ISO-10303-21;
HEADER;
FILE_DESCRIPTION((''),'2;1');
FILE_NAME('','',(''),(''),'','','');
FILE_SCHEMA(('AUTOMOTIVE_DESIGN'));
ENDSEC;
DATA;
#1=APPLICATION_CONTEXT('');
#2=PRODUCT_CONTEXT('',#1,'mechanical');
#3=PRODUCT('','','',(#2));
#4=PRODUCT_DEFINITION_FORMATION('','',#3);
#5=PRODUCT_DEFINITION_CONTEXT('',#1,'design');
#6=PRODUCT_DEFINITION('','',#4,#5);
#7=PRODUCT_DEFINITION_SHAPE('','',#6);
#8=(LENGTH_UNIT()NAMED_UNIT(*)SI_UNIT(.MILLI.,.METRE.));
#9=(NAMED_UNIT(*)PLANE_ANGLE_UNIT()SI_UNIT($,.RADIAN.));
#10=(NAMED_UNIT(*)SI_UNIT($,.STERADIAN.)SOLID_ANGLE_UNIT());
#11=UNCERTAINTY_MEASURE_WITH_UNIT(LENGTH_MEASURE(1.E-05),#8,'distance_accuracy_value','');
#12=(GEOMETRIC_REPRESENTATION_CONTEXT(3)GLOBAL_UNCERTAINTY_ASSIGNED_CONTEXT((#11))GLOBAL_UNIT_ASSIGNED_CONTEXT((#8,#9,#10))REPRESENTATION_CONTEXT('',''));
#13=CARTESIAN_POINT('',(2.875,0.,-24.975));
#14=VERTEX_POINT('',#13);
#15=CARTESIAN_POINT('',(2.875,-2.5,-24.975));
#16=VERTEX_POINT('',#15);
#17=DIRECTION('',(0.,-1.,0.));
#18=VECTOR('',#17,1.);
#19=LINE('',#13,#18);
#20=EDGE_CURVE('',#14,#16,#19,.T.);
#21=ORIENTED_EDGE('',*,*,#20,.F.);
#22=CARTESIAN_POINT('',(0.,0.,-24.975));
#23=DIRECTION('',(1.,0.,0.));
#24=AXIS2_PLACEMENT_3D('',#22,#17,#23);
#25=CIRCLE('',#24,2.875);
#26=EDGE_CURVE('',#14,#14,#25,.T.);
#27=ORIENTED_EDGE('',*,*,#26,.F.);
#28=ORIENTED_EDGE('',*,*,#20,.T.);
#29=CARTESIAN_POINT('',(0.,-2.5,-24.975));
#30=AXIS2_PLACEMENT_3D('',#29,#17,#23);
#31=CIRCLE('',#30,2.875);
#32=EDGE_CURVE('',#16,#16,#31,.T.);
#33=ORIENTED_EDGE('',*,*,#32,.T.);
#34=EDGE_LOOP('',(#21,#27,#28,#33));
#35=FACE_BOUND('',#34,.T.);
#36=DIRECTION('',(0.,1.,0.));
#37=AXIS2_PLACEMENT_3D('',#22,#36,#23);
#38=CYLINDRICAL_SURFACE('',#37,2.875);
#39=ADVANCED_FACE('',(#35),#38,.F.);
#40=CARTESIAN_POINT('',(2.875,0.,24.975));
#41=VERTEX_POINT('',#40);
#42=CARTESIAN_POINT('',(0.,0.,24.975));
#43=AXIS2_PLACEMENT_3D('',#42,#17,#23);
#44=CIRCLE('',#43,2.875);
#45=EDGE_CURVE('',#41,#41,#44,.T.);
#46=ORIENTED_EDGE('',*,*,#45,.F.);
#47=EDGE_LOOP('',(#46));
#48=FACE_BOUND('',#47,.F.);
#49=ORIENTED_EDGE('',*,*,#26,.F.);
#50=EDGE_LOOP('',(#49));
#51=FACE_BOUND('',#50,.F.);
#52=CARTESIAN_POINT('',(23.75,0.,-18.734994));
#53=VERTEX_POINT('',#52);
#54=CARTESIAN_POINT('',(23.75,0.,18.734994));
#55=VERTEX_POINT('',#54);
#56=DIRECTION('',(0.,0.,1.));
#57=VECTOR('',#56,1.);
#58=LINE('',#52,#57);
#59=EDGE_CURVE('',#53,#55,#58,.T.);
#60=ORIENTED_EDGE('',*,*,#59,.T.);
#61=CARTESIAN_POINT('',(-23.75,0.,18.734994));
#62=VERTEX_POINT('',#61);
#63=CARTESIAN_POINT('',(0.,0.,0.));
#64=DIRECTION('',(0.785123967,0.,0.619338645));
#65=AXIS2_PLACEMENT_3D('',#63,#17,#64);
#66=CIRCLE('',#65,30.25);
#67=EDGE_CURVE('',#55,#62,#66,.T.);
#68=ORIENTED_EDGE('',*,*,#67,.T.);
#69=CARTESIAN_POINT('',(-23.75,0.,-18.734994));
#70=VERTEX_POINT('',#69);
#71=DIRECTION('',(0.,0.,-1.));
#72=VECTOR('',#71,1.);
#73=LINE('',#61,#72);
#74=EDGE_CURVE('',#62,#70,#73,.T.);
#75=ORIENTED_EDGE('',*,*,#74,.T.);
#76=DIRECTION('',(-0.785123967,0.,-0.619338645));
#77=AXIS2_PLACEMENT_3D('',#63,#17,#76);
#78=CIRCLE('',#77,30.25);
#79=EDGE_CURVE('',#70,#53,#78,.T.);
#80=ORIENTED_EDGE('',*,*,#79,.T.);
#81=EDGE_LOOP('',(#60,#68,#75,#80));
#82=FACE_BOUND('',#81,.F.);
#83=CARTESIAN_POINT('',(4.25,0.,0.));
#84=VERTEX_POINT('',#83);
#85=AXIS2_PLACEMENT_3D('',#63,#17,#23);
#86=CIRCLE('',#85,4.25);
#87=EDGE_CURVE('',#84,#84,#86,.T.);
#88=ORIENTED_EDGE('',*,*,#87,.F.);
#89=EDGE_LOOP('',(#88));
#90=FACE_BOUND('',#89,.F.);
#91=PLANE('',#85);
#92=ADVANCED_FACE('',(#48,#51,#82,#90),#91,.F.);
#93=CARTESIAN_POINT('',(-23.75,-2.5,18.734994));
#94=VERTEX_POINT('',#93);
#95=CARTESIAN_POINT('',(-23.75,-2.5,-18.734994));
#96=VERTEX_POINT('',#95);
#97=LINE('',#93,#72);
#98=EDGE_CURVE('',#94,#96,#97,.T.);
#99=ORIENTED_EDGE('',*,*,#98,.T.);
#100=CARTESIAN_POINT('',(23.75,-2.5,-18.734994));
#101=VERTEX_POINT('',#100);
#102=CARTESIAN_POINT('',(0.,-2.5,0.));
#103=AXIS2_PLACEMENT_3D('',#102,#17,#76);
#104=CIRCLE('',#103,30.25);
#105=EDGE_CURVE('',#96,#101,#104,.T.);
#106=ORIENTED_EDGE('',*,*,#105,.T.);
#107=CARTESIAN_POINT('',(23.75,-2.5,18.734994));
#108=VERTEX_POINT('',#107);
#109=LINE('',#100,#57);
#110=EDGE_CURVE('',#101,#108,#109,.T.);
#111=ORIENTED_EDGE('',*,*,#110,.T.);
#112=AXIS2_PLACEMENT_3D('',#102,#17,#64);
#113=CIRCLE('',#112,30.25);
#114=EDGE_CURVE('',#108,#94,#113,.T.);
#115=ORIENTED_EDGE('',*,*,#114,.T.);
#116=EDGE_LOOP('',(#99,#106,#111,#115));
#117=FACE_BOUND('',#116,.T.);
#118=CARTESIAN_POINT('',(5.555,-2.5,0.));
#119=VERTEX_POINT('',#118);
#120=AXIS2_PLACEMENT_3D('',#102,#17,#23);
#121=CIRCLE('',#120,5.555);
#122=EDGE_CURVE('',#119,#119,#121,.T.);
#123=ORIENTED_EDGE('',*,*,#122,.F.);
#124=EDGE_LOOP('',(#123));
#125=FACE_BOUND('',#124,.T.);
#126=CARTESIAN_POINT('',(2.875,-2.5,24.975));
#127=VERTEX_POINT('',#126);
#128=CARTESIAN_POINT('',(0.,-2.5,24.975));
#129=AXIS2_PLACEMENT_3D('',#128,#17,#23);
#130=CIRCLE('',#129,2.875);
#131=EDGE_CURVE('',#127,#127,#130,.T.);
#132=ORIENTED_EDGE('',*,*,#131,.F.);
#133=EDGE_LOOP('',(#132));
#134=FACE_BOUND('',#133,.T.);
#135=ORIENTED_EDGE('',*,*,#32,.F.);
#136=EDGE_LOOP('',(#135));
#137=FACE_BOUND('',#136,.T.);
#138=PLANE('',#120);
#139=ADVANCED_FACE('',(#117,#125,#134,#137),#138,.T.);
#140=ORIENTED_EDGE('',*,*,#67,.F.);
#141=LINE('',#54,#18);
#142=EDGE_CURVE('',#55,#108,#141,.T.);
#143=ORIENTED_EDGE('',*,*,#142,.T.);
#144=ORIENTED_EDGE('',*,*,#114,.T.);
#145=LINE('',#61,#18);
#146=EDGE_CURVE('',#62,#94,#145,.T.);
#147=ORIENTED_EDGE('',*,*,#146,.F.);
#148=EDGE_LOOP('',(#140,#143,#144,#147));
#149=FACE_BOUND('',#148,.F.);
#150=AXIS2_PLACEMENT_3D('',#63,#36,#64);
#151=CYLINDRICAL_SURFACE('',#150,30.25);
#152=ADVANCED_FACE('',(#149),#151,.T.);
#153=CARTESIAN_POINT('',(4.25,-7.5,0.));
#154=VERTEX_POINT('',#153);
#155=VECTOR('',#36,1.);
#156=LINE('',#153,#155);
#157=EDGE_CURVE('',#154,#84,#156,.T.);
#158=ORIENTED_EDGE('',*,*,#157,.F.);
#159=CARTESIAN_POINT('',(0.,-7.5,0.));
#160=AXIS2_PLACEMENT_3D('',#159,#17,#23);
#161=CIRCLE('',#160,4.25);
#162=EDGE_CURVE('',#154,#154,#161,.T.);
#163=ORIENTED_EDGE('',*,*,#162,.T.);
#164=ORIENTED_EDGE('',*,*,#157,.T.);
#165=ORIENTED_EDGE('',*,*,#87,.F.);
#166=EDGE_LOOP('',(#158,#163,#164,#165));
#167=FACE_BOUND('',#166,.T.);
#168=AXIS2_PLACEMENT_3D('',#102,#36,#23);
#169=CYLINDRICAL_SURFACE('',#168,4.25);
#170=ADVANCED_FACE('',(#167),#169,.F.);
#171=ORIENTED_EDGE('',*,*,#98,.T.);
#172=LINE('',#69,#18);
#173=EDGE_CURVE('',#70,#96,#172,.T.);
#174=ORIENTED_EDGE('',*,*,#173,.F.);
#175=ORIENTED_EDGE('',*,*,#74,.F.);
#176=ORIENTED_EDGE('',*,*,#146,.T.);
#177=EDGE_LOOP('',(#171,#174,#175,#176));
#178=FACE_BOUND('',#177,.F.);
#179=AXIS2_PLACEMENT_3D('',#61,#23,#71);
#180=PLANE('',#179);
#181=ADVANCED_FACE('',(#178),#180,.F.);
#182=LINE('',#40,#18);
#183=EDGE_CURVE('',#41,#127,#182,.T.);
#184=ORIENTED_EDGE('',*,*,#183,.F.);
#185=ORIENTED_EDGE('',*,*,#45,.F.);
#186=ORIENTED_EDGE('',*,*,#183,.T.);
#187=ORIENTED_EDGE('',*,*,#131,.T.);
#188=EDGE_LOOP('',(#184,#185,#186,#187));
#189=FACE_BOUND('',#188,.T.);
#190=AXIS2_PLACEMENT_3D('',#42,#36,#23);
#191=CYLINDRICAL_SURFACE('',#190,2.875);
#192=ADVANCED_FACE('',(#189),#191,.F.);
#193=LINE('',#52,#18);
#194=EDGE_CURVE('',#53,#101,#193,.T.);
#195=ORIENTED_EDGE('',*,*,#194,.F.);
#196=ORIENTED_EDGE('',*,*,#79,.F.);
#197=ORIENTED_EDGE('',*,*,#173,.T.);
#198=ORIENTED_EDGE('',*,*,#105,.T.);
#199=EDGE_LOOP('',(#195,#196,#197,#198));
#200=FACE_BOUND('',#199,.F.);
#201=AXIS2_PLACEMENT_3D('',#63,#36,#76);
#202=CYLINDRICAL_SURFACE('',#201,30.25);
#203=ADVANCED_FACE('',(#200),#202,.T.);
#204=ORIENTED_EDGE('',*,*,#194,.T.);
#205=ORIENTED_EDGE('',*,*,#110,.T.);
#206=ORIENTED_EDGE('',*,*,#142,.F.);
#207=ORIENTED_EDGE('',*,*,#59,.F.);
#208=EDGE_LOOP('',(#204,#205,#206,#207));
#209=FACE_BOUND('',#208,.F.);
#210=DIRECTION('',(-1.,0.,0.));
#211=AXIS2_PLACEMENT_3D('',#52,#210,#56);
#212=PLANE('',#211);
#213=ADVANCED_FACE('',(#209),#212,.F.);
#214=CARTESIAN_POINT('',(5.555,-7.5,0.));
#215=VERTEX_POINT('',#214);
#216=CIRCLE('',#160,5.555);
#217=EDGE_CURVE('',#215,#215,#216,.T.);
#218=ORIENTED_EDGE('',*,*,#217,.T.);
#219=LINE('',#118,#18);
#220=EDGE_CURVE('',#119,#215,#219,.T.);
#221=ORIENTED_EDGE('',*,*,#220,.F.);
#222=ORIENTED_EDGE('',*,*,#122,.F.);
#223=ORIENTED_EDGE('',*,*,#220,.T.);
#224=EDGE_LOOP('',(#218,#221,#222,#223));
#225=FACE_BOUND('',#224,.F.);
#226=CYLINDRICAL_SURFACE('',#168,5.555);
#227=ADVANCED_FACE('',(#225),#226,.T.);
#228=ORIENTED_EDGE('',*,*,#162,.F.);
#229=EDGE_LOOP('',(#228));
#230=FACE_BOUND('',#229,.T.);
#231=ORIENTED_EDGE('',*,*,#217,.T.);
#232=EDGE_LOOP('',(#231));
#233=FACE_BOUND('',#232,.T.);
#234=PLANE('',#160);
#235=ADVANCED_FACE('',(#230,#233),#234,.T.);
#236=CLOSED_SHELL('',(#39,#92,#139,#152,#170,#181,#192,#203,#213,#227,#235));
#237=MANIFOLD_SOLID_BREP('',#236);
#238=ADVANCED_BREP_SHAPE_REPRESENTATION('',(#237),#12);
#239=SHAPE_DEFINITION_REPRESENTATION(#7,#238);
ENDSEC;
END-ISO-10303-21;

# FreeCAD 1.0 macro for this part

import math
import FreeCAD as App
import Part
import Sketcher

doc = App.newDocument("Part")
body = doc.addObject("PartDesign::Body", "Body")

# Sketch on XZ plane
sketch1 = doc.addObject("Sketcher::SketchObject", "Sketch")
body.addObject(sketch1)
sketch1.AttachmentSupport = (doc.XZ_Plane, [""])
sketch1.MapMode = "FlatFace"
sketch1.addGeometry(Part.LineSegment(App.Vector(23.75, -18.734994, 0), App.Vector(23.75, 18.734994, 0)), False)
sketch1.addGeometry(Part.ArcOfCircle(Part.Circle(App.Vector(0, 0, 0), App.Vector(0, 0, 1), 30.25), math.radians(38.267855), math.radians(141.732145)), False)
sketch1.addGeometry(Part.LineSegment(App.Vector(-23.75, 18.734994, 0), App.Vector(-23.75, -18.734994, 0)), False)
sketch1.addGeometry(Part.ArcOfCircle(Part.Circle(App.Vector(0, 0, 0), App.Vector(0, 0, 1), 30.25), math.radians(-141.732145), math.radians(-38.267855)), False)
sketch1.addGeometry(Part.Circle(App.Vector(0, -24.975, 0), App.Vector(0, 0, 1), 2.875), False)
sketch1.addGeometry(Part.Circle(App.Vector(0, 0, 0), App.Vector(0, 0, 1), 4.25), False)
sketch1.addGeometry(Part.Circle(App.Vector(0, 24.975, 0), App.Vector(0, 0, 1), 2.875), False)
sketch1.addConstraint(Sketcher.Constraint("Coincident", 0, 2, 1, 1))
sketch1.addConstraint(Sketcher.Constraint("Coincident", 1, 2, 2, 1))
sketch1.addConstraint(Sketcher.Constraint("Coincident", 2, 2, 3, 1))
sketch1.addConstraint(Sketcher.Constraint("Coincident", 3, 2, 0, 1))
sketch1.addConstraint(Sketcher.Constraint("Vertical", 0))
sketch1.addConstraint(Sketcher.Constraint("Vertical", 2))
sketch1.addConstraint(Sketcher.Constraint("Coincident", 1, 3, -1, 1))
sketch1.addConstraint(Sketcher.Constraint("Coincident", 3, 3, -1, 1))
sketch1.addConstraint(Sketcher.Constraint("Coincident", 5, 3, -1, 1))
sketch1.addConstraint(Sketcher.Constraint("Equal", 1, 3))
sketch1.addConstraint(Sketcher.Constraint("Equal", 4, 6))
sketch1.addConstraint(Sketcher.Constraint("Symmetric", 4, 3, 6, 3, -1, 1))
sketch1.addConstraint(Sketcher.Constraint("PointOnObject", 4, 3, -2))
sketch1.addConstraint(Sketcher.Constraint("Horizontal", 0, 2, 1, 2))
sketch1.addConstraint(Sketcher.Constraint("Diameter", 5, 8.5))
sketch1.addConstraint(Sketcher.Constraint("Diameter", 4, 5.75))
sketch1.addConstraint(Sketcher.Constraint("Radius", 1, 30.25))
sketch1.addConstraint(Sketcher.Constraint("DistanceX", 1, 2, 0, 2, 47.5))
sketch1.addConstraint(Sketcher.Constraint("DistanceY", 4, 3, 6, 3, 49.95))
pad1 = doc.addObject("PartDesign::Pad", "Pad")
body.addObject(pad1)
pad1.Profile = sketch1
pad1.Length = 2.5

# Sketch on XZ plane
sketch2 = doc.addObject("Sketcher::SketchObject", "Sketch001")
body.addObject(sketch2)
sketch2.AttachmentSupport = (doc.XZ_Plane, [""])
sketch2.MapMode = "FlatFace"
sketch2.AttachmentOffset = App.Placement(App.Vector(0, 0, 2.5), App.Rotation())
sketch2.addGeometry(Part.Circle(App.Vector(0, 0, 0), App.Vector(0, 0, 1), 5.555), False)
sketch2.addGeometry(Part.Circle(App.Vector(0, 0, 0), App.Vector(0, 0, 1), 4.25), False)
sketch2.addConstraint(Sketcher.Constraint("Coincident", 0, 3, -1, 1))
sketch2.addConstraint(Sketcher.Constraint("Coincident", 1, 3, -1, 1))
sketch2.addConstraint(Sketcher.Constraint("Diameter", 1, 8.5))
sketch2.addConstraint(Sketcher.Constraint("Diameter", 0, 11.11))
pad2 = doc.addObject("PartDesign::Pad", "Pad001")
body.addObject(pad2)
pad2.Profile = sketch2
pad2.Length = 5

doc.recompute()
